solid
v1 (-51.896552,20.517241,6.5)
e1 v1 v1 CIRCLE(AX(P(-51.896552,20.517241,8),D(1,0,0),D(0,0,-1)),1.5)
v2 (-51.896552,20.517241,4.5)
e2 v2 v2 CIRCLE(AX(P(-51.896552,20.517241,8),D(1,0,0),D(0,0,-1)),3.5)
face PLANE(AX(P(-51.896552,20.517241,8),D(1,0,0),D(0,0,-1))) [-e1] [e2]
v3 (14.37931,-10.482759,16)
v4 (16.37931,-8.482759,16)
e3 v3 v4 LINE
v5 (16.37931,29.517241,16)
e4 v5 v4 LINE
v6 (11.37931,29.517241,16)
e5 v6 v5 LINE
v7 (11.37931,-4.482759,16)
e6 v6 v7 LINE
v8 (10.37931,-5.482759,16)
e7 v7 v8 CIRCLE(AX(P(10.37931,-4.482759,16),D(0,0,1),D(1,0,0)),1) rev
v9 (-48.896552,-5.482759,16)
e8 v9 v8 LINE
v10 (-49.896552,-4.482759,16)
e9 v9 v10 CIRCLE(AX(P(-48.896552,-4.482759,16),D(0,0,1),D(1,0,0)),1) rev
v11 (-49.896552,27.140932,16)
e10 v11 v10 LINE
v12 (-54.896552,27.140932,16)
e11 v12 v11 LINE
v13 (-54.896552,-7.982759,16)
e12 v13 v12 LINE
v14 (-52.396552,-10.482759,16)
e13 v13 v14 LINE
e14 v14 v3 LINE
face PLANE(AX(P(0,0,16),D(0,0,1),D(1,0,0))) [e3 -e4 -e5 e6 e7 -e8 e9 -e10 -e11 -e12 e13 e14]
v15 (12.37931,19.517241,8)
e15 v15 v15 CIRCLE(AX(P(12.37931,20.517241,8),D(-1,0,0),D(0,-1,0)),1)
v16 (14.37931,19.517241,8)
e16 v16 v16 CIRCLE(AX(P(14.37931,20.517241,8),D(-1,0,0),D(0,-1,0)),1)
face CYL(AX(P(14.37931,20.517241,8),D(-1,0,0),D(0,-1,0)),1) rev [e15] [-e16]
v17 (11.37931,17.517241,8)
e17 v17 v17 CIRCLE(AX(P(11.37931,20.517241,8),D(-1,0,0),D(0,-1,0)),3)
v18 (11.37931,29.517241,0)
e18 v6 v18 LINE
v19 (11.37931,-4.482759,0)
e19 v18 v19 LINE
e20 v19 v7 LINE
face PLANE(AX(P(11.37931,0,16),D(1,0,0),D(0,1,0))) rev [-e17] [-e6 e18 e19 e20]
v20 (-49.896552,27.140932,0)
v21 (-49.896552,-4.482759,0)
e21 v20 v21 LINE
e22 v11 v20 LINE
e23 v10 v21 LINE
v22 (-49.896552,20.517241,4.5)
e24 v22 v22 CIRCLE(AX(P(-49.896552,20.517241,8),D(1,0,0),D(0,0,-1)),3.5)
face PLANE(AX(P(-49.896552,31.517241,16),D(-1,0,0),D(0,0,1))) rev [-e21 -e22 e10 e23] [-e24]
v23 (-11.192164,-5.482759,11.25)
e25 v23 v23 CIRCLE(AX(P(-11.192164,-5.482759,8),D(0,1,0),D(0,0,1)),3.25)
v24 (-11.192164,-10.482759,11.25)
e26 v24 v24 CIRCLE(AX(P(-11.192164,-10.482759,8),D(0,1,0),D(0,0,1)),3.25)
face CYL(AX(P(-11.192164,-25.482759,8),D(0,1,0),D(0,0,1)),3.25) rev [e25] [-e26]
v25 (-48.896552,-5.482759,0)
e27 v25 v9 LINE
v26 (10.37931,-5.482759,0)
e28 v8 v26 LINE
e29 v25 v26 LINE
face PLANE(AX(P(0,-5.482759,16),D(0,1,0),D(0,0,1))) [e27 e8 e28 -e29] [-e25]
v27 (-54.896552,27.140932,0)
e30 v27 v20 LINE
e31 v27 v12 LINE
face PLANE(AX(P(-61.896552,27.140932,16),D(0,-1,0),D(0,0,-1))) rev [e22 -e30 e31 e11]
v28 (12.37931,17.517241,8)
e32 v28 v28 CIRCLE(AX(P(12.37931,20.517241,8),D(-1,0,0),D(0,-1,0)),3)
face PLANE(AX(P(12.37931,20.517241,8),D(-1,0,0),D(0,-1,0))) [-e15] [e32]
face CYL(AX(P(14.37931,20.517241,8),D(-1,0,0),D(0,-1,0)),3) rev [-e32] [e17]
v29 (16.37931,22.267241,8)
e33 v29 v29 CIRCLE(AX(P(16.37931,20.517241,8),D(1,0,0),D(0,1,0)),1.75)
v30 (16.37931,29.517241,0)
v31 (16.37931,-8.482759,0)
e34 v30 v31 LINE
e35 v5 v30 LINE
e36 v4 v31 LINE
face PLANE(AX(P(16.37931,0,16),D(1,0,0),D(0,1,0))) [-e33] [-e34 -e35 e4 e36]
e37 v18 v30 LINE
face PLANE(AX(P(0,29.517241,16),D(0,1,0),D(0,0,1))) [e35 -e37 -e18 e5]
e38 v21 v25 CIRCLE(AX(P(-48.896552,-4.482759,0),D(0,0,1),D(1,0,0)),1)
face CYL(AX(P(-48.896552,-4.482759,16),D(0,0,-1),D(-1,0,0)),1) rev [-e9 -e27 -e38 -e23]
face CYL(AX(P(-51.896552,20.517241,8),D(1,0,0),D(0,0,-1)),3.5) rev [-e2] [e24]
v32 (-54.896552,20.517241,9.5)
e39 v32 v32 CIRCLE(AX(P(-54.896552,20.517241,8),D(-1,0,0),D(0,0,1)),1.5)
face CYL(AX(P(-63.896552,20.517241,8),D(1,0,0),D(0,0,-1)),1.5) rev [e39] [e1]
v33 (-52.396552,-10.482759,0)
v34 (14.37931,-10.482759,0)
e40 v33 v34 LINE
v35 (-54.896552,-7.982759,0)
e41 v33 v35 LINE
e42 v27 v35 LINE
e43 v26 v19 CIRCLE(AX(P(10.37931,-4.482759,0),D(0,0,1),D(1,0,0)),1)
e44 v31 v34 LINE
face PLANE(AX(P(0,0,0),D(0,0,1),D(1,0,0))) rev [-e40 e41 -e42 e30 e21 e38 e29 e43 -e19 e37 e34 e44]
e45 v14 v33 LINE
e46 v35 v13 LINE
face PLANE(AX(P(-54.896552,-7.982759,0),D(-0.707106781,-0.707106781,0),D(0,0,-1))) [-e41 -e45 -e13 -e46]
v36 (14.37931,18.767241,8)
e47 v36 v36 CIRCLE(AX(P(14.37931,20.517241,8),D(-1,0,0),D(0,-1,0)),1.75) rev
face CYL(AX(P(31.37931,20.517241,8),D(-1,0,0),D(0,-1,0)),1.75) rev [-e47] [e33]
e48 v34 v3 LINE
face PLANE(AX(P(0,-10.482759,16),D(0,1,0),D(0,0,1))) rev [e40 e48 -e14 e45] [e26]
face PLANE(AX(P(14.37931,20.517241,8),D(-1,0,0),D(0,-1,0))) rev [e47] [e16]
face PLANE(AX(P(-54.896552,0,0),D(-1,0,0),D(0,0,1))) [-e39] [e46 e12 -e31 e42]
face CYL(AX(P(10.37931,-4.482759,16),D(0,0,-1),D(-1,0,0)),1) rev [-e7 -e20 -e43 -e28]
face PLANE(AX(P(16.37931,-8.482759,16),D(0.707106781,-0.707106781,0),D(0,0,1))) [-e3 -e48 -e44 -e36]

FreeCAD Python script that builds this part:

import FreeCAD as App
import Part
import Sketcher


def edges_at(feature, points):
    """Names of the edges that pass closest to the given points."""
    edges = feature.Shape.Edges
    near = lambda p: min(range(len(edges)), key=lambda i: edges[i].distToShape(Part.Vertex(*p))[0])
    return sorted({f"Edge{near(p) + 1}" for p in points})

doc = App.newDocument("Part")
params = doc.addObject("Spreadsheet::Sheet", "Params")
for row, (alias, value) in enumerate([
    ("sketch1_width", "5 mm"),
    ("sketch1_height", "35 mm"),
    ("pad1_length", "16 mm"),
    ("sketch2_diameter", "6.5 mm"),
    ("pocket1_length", "20 mm"),
    ("fillet_radius", "1 mm"),
    ("chamfer_size", "2 mm"),
    ("sketch3_diameter", "3.5 mm"),
    ("pocket2_length", "20 mm"),
    ("sketch4_diameter", "6 mm"),
    ("pocket3_length", "3 mm"),
    ("sketch5_diameter", "6 mm"),
    ("pad2_length", "2 mm"),
    ("sketch6_diameter", "2 mm"),
    ("pocket4_length", "2 mm"),
    ("sketch7_width", "5 mm"),
    ("sketch7_height", "16 mm"),
    ("pad3_length", "37 mm"),
    ("sketch8_width", "5 mm"),
    ("sketch8_height", "16 mm"),
    ("pad4_length", "37 mm"),
    ("sketch9_diameter", "2 mm"),
    ("pocket5_length", "87 mm"),
    ("sketch10_diameter", "7 mm"),
    ("pocket6_length", "2 mm"),
    ("sketch11_diameter", "3 mm"),
    ("pocket7_length", "12 mm"),
    ("chamfer2_size", "2.5 mm"),
    ("fillet2_radius", "1 mm"),
    ("sketch12_height", "16 mm"),
    ("pocket8_length", "12 mm"),
], start=1):
    params.set(f"A{row}", alias)
    params.set(f"B{row}", "=" + value)
    params.setAlias(f"B{row}", alias)

body = doc.addObject("PartDesign::Body", "Body")

# Sketch on XY plane
sketch1 = body.newObject("Sketcher::SketchObject", "Sketch")
sketch1.AttachmentSupport = (doc.getObject("XY_Plane"), [""])
sketch1.MapMode = "FlatFace"
sketch1.addGeometry(Part.LineSegment(App.Vector(16, 30, 0), App.Vector(11, 30, 0)), False)
sketch1.addGeometry(Part.LineSegment(App.Vector(11, 30, 0), App.Vector(11, -5, 0)), False)
sketch1.addGeometry(Part.LineSegment(App.Vector(11, -5, 0), App.Vector(-18, -5, 0)), False)
sketch1.addGeometry(Part.LineSegment(App.Vector(-18, -5, 0), App.Vector(-18, -10, 0)), False)
sketch1.addGeometry(Part.LineSegment(App.Vector(-18, -10, 0), App.Vector(16, -10, 0)), False)
sketch1.addGeometry(Part.LineSegment(App.Vector(16, -10, 0), App.Vector(16, 30, 0)), False)
sketch1.addConstraint(Sketcher.Constraint("Coincident", 0, 2, 1, 1))
sketch1.addConstraint(Sketcher.Constraint("Coincident", 1, 2, 2, 1))
sketch1.addConstraint(Sketcher.Constraint("Coincident", 2, 2, 3, 1))
sketch1.addConstraint(Sketcher.Constraint("Coincident", 3, 2, 4, 1))
sketch1.addConstraint(Sketcher.Constraint("Coincident", 4, 2, 5, 1))
sketch1.addConstraint(Sketcher.Constraint("Coincident", 5, 2, 0, 1))
sketch1.addConstraint(Sketcher.Constraint("Horizontal", 0))
sketch1.addConstraint(Sketcher.Constraint("Vertical", 1))
sketch1.addConstraint(Sketcher.Constraint("Horizontal", 2))
sketch1.addConstraint(Sketcher.Constraint("Vertical", 3))
sketch1.addConstraint(Sketcher.Constraint("Horizontal", 4))
sketch1.addConstraint(Sketcher.Constraint("Vertical", 5))
sketch1.addConstraint(Sketcher.Constraint("Equal", 0, 3))
sketch1.addConstraint(Sketcher.Constraint("DistanceX", 0, 2, 0, 1, 5.0))
sketch1.addConstraint(Sketcher.Constraint("DistanceY", 1, 2, 1, 1, 35.0))
sketch1.addConstraint(Sketcher.Constraint("DistanceX", 2, 2, 2, 1, 29.275862))
sketch1.addConstraint(Sketcher.Constraint("DistanceX", -1, 1, 0, 2, 11.37931))
sketch1.addConstraint(Sketcher.Constraint("DistanceY", -1, 1, 0, 2, 29.517241))
sketch1.setExpression("Constraints[13]", "Params.sketch1_width")
sketch1.setExpression("Constraints[14]", "Params.sketch1_height")
pad1 = body.newObject("PartDesign::Pad", "Pad")
pad1.Profile = sketch1
pad1.setExpression("Length", "Params.pad1_length")

# Sketch on XZ plane
sketch2 = body.newObject("Sketcher::SketchObject", "Sketch001")
sketch2.AttachmentSupport = (doc.getObject("XZ_Plane"), [""])
sketch2.MapMode = "FlatFace"
sketch2.AttachmentOffset = App.Placement(App.Vector(0, 0, 5.482759), App.Rotation())
sketch2.addGeometry(Part.Circle(App.Vector(-11.2, 8, 0), App.Vector(0, 0, 1), 3.2), False)
sketch2.addConstraint(Sketcher.Constraint("Diameter", 0, 6.5))
sketch2.addConstraint(Sketcher.Constraint("DistanceY", -1, 1, 0, 3, 8.0))
sketch2.addConstraint(Sketcher.Constraint("DistanceX", 0, 3, -1, 1, 11.192164))
sketch2.setExpression("Constraints[0]", "Params.sketch2_diameter")
pocket1 = body.newObject("PartDesign::Pocket", "Pocket")
pocket1.Profile = sketch2
pocket1.setExpression("Length", "Params.pocket1_length")
pocket1.Reversed = True
doc.recompute()

fillet = body.newObject("PartDesign::Fillet", "Fillet")
fillet.Base = (pocket1, edges_at(pocket1, [(11.379, -5.483, 8)]))
fillet.setExpression("Radius", "Params.fillet_radius")
doc.recompute()

chamfer = body.newObject("PartDesign::Chamfer", "Chamfer")
chamfer.Base = (fillet, edges_at(fillet, [(16.379, -10.483, 8)]))
chamfer.setExpression("Size", "Params.chamfer_size")

# Sketch on YZ plane
sketch3 = body.newObject("Sketcher::SketchObject", "Sketch002")
sketch3.AttachmentSupport = (doc.getObject("YZ_Plane"), [""])
sketch3.MapMode = "FlatFace"
sketch3.AttachmentOffset = App.Placement(App.Vector(0, 0, 11.37931), App.Rotation())
sketch3.addGeometry(Part.Circle(App.Vector(20.5, 8, 0), App.Vector(0, 0, 1), 1.8), False)
sketch3.addConstraint(Sketcher.Constraint("Diameter", 0, 3.5))
sketch3.addConstraint(Sketcher.Constraint("DistanceY", -1, 1, 0, 3, 8.0))
sketch3.addConstraint(Sketcher.Constraint("DistanceX", -1, 1, 0, 3, 20.517241))
sketch3.setExpression("Constraints[0]", "Params.sketch3_diameter")
pocket2 = body.newObject("PartDesign::Pocket", "Pocket001")
pocket2.Profile = sketch3
pocket2.setExpression("Length", "Params.pocket2_length")
pocket2.Reversed = True

# Sketch on YZ plane
sketch4 = body.newObject("Sketcher::SketchObject", "Sketch003")
sketch4.AttachmentSupport = (doc.getObject("YZ_Plane"), [""])
sketch4.MapMode = "FlatFace"
sketch4.AttachmentOffset = App.Placement(App.Vector(0, 0, 11.37931), App.Rotation())
sketch4.addGeometry(Part.Circle(App.Vector(20.5, 8, 0), App.Vector(0, 0, 1), 3), False)
sketch4.addConstraint(Sketcher.Constraint("Diameter", 0, 6.0))
sketch4.addConstraint(Sketcher.Constraint("DistanceY", -1, 1, 0, 3, 8.0))
sketch4.addConstraint(Sketcher.Constraint("DistanceX", -1, 1, 0, 3, 20.517241))
sketch4.setExpression("Constraints[0]", "Params.sketch4_diameter")
pocket3 = body.newObject("PartDesign::Pocket", "Pocket002")
pocket3.Profile = sketch4
pocket3.setExpression("Length", "Params.pocket3_length")
pocket3.Reversed = True

# Sketch on YZ plane
sketch5 = body.newObject("Sketcher::SketchObject", "Sketch004")
sketch5.AttachmentSupport = (doc.getObject("YZ_Plane"), [""])
sketch5.MapMode = "FlatFace"
sketch5.AttachmentOffset = App.Placement(App.Vector(0, 0, 12.37931), App.Rotation())
sketch5.addGeometry(Part.Circle(App.Vector(20.5, 8, 0), App.Vector(0, 0, 1), 3), False)
sketch5.addConstraint(Sketcher.Constraint("Diameter", 0, 6.0))
sketch5.addConstraint(Sketcher.Constraint("DistanceY", -1, 1, 0, 3, 8.0))
sketch5.addConstraint(Sketcher.Constraint("DistanceX", -1, 1, 0, 3, 20.517241))
sketch5.setExpression("Constraints[0]", "Params.sketch5_diameter")
pad2 = body.newObject("PartDesign::Pad", "Pad001")
pad2.Profile = sketch5
pad2.setExpression("Length", "Params.pad2_length")

# Sketch on YZ plane
sketch6 = body.newObject("Sketcher::SketchObject", "Sketch005")
sketch6.AttachmentSupport = (doc.getObject("YZ_Plane"), [""])
sketch6.MapMode = "FlatFace"
sketch6.AttachmentOffset = App.Placement(App.Vector(0, 0, 12.37931), App.Rotation())
sketch6.addGeometry(Part.Circle(App.Vector(20.5, 8, 0), App.Vector(0, 0, 1), 1), False)
sketch6.addConstraint(Sketcher.Constraint("Diameter", 0, 2.0))
sketch6.addConstraint(Sketcher.Constraint("DistanceY", -1, 1, 0, 3, 8.0))
sketch6.addConstraint(Sketcher.Constraint("DistanceX", -1, 1, 0, 3, 20.517241))
sketch6.setExpression("Constraints[0]", "Params.sketch6_diameter")
pocket4 = body.newObject("PartDesign::Pocket", "Pocket003")
pocket4.Profile = sketch6
pocket4.setExpression("Length", "Params.pocket4_length")
pocket4.Reversed = True

# Sketch on YZ plane
sketch7 = body.newObject("Sketcher::SketchObject", "Sketch006")
sketch7.AttachmentSupport = (doc.getObject("YZ_Plane"), [""])
sketch7.MapMode = "FlatFace"
sketch7.AttachmentOffset = App.Placement(App.Vector(0, 0, -17.896552), App.Rotation())
sketch7.addGeometry(Part.LineSegment(App.Vector(-5, 0, 0), App.Vector(-10, 0, 0)), False)
sketch7.addGeometry(Part.LineSegment(App.Vector(-10, 0, 0), App.Vector(-10, 16, 0)), False)
sketch7.addGeometry(Part.LineSegment(App.Vector(-10, 16, 0), App.Vector(-5, 16, 0)), False)
sketch7.addGeometry(Part.LineSegment(App.Vector(-5, 16, 0), App.Vector(-5, 0, 0)), False)
sketch7.addConstraint(Sketcher.Constraint("Coincident", 0, 2, 1, 1))
sketch7.addConstraint(Sketcher.Constraint("Coincident", 1, 2, 2, 1))
sketch7.addConstraint(Sketcher.Constraint("Coincident", 2, 2, 3, 1))
sketch7.addConstraint(Sketcher.Constraint("Coincident", 3, 2, 0, 1))
sketch7.addConstraint(Sketcher.Constraint("Horizontal", 0))
sketch7.addConstraint(Sketcher.Constraint("Vertical", 1))
sketch7.addConstraint(Sketcher.Constraint("Horizontal", 2))
sketch7.addConstraint(Sketcher.Constraint("Vertical", 3))
sketch7.addConstraint(Sketcher.Constraint("PointOnObject", 0, 2, -1))
sketch7.addConstraint(Sketcher.Constraint("DistanceX", 0, 2, 0, 1, 5.0))
sketch7.addConstraint(Sketcher.Constraint("DistanceY", 1, 1, 1, 2, 16.0))
sketch7.addConstraint(Sketcher.Constraint("DistanceX", 0, 2, -1, 1, 10.482759))
sketch7.setExpression("Constraints[9]", "Params.sketch7_width")
sketch7.setExpression("Constraints[10]", "Params.sketch7_height")
pad3 = body.newObject("PartDesign::Pad", "Pad002")
pad3.Profile = sketch7
pad3.setExpression("Length", "Params.pad3_length")
pad3.Reversed = True

# Sketch on XZ plane
sketch8 = body.newObject("Sketcher::SketchObject", "Sketch007")
sketch8.AttachmentSupport = (doc.getObject("XZ_Plane"), [""])
sketch8.MapMode = "FlatFace"
sketch8.AttachmentOffset = App.Placement(App.Vector(0, 0, 5.482759), App.Rotation())
sketch8.addGeometry(Part.LineSegment(App.Vector(-55, 0, 0), App.Vector(-55, 16, 0)), False)
sketch8.addGeometry(Part.LineSegment(App.Vector(-55, 16, 0), App.Vector(-50, 16, 0)), False)
sketch8.addGeometry(Part.LineSegment(App.Vector(-50, 16, 0), App.Vector(-50, 0, 0)), False)
sketch8.addGeometry(Part.LineSegment(App.Vector(-50, 0, 0), App.Vector(-55, 0, 0)), False)
sketch8.addConstraint(Sketcher.Constraint("Coincident", 0, 2, 1, 1))
sketch8.addConstraint(Sketcher.Constraint("Coincident", 1, 2, 2, 1))
sketch8.addConstraint(Sketcher.Constraint("Coincident", 2, 2, 3, 1))
sketch8.addConstraint(Sketcher.Constraint("Coincident", 3, 2, 0, 1))
sketch8.addConstraint(Sketcher.Constraint("Vertical", 0))
sketch8.addConstraint(Sketcher.Constraint("Horizontal", 1))
sketch8.addConstraint(Sketcher.Constraint("Vertical", 2))
sketch8.addConstraint(Sketcher.Constraint("Horizontal", 3))
sketch8.addConstraint(Sketcher.Constraint("PointOnObject", 2, 2, -1))
sketch8.addConstraint(Sketcher.Constraint("DistanceX", 1, 1, 1, 2, 5.0))
sketch8.addConstraint(Sketcher.Constraint("DistanceY", 0, 1, 0, 2, 16.0))
sketch8.addConstraint(Sketcher.Constraint("DistanceX", 0, 2, -1, 1, 54.896552))
sketch8.setExpression("Constraints[9]", "Params.sketch8_width")
sketch8.setExpression("Constraints[10]", "Params.sketch8_height")
pad4 = body.newObject("PartDesign::Pad", "Pad003")
pad4.Profile = sketch8
pad4.setExpression("Length", "Params.pad4_length")
pad4.Reversed = True

# Sketch on YZ plane
sketch9 = body.newObject("Sketcher::SketchObject", "Sketch008")
sketch9.AttachmentSupport = (doc.getObject("YZ_Plane"), [""])
sketch9.MapMode = "FlatFace"
sketch9.AttachmentOffset = App.Placement(App.Vector(0, 0, -72.62069), App.Rotation())
sketch9.addGeometry(Part.Circle(App.Vector(20.5, 8, 0), App.Vector(0, 0, 1), 1), False)
sketch9.addConstraint(Sketcher.Constraint("Diameter", 0, 2.0))
sketch9.addConstraint(Sketcher.Constraint("DistanceY", -1, 1, 0, 3, 8.0))
sketch9.addConstraint(Sketcher.Constraint("DistanceX", -1, 1, 0, 3, 20.517241))
sketch9.setExpression("Constraints[0]", "Params.sketch9_diameter")
pocket5 = body.newObject("PartDesign::Pocket", "Pocket004")
pocket5.Profile = sketch9
pocket5.setExpression("Length", "Params.pocket5_length")
pocket5.Reversed = True

# Sketch on YZ plane
sketch10 = body.newObject("Sketcher::SketchObject", "Sketch009")
sketch10.AttachmentSupport = (doc.getObject("YZ_Plane"), [""])
sketch10.MapMode = "FlatFace"
sketch10.AttachmentOffset = App.Placement(App.Vector(0, 0, -49.896552), App.Rotation())
sketch10.addGeometry(Part.Circle(App.Vector(20.5, 8, 0), App.Vector(0, 0, 1), 3.5), False)
sketch10.addConstraint(Sketcher.Constraint("Diameter", 0, 7.0))
sketch10.addConstraint(Sketcher.Constraint("DistanceY", -1, 1, 0, 3, 8.0))
sketch10.addConstraint(Sketcher.Constraint("DistanceX", -1, 1, 0, 3, 20.517241))
sketch10.setExpression("Constraints[0]", "Params.sketch10_diameter")
pocket6 = body.newObject("PartDesign::Pocket", "Pocket005")
pocket6.Profile = sketch10
pocket6.setExpression("Length", "Params.pocket6_length")

# Sketch on YZ plane
sketch11 = body.newObject("Sketcher::SketchObject", "Sketch010")
sketch11.AttachmentSupport = (doc.getObject("YZ_Plane"), [""])
sketch11.MapMode = "FlatFace"
sketch11.AttachmentOffset = App.Placement(App.Vector(0, 0, -51.896552), App.Rotation())
sketch11.addGeometry(Part.Circle(App.Vector(20.5, 8, 0), App.Vector(0, 0, 1), 1.5), False)
sketch11.addConstraint(Sketcher.Constraint("Diameter", 0, 3.0))
sketch11.addConstraint(Sketcher.Constraint("DistanceY", -1, 1, 0, 3, 8.0))
sketch11.addConstraint(Sketcher.Constraint("DistanceX", -1, 1, 0, 3, 20.517241))
sketch11.setExpression("Constraints[0]", "Params.sketch11_diameter")
pocket7 = body.newObject("PartDesign::Pocket", "Pocket006")
pocket7.Profile = sketch11
pocket7.setExpression("Length", "Params.pocket7_length")
doc.recompute()

chamfer2 = body.newObject("PartDesign::Chamfer", "Chamfer001")
chamfer2.Base = (pocket7, edges_at(pocket7, [(-54.897, -10.483, 8)]))
chamfer2.setExpression("Size", "Params.chamfer2_size")
doc.recompute()

fillet2 = body.newObject("PartDesign::Fillet", "Fillet001")
fillet2.Base = (chamfer2, edges_at(chamfer2, [(-49.897, -5.483, 8)]))
fillet2.setExpression("Radius", "Params.fillet2_radius")

# Sketch on YZ plane
sketch12 = body.newObject("Sketcher::SketchObject", "Sketch011")
sketch12.AttachmentSupport = (doc.getObject("YZ_Plane"), [""])
sketch12.MapMode = "FlatFace"
sketch12.AttachmentOffset = App.Placement(App.Vector(0, 0, -49.896552), App.Rotation())
sketch12.addGeometry(Part.LineSegment(App.Vector(31.5, 16, 0), App.Vector(27.1, 16, 0)), False)
sketch12.addGeometry(Part.LineSegment(App.Vector(27.1, 16, 0), App.Vector(27.1, 0, 0)), False)
sketch12.addGeometry(Part.LineSegment(App.Vector(27.1, 0, 0), App.Vector(31.5, 0, 0)), False)
sketch12.addGeometry(Part.LineSegment(App.Vector(31.5, 0, 0), App.Vector(31.5, 16, 0)), False)
sketch12.addConstraint(Sketcher.Constraint("Coincident", 0, 2, 1, 1))
sketch12.addConstraint(Sketcher.Constraint("Coincident", 1, 2, 2, 1))
sketch12.addConstraint(Sketcher.Constraint("Coincident", 2, 2, 3, 1))
sketch12.addConstraint(Sketcher.Constraint("Coincident", 3, 2, 0, 1))
sketch12.addConstraint(Sketcher.Constraint("Horizontal", 0))
sketch12.addConstraint(Sketcher.Constraint("Vertical", 1))
sketch12.addConstraint(Sketcher.Constraint("Horizontal", 2))
sketch12.addConstraint(Sketcher.Constraint("Vertical", 3))
sketch12.addConstraint(Sketcher.Constraint("PointOnObject", 1, 2, -1))
sketch12.addConstraint(Sketcher.Constraint("DistanceY", 1, 2, 1, 1, 16.0))
sketch12.addConstraint(Sketcher.Constraint("DistanceX", 0, 2, 0, 1, 4.376309))
sketch12.addConstraint(Sketcher.Constraint("DistanceX", -1, 1, 2, 2, 31.517241))
sketch12.setExpression("Constraints[9]", "Params.sketch12_height")
pocket8 = body.newObject("PartDesign::Pocket", "Pocket007")
pocket8.Profile = sketch12
pocket8.setExpression("Length", "Params.pocket8_length")

doc.recompute()
